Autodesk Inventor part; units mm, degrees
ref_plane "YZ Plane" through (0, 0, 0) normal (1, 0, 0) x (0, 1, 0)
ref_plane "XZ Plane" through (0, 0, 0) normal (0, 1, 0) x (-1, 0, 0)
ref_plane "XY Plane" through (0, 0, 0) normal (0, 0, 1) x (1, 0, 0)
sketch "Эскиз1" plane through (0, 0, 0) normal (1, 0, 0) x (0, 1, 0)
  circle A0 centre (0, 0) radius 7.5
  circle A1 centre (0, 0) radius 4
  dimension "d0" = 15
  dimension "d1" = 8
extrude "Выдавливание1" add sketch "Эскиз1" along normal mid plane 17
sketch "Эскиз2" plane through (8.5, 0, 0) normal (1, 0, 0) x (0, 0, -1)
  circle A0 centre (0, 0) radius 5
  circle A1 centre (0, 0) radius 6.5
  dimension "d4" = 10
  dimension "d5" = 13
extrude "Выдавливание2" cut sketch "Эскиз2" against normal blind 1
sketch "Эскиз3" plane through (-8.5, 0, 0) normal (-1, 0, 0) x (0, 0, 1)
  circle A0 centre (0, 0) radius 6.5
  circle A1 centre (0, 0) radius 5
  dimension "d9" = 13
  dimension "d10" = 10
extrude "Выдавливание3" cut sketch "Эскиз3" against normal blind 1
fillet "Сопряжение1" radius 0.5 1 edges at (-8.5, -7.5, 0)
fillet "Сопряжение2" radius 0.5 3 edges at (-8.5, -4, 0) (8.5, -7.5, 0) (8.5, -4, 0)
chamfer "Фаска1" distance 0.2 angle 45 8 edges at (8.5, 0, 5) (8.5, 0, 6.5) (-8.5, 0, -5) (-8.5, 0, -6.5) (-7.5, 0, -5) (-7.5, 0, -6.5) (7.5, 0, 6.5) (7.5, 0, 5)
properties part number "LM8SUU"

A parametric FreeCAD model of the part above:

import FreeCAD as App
import Part
import Sketcher
from FreeCAD import Vector


def edges_at(feature, points):
    """Names of the edges that pass closest to the given points."""
    edges = feature.Shape.Edges
    near = lambda p: min(range(len(edges)), key=lambda i: edges[i].distToShape(Part.Vertex(*p))[0])
    return sorted({f"Edge{near(p) + 1}" for p in points})

doc = App.newDocument("Part")
body = doc.addObject("PartDesign::Body", "Body")

sketch1 = body.newObject("Sketcher::SketchObject", "Sketch")
sketch1.AttachmentSupport = (doc.getObject("YZ_Plane"), [""])
sketch1.MapMode = "FlatFace"
sketch1.addGeometry([
    Part.Circle(Vector(0, 0, 0), Vector(0, 0, 1), 7.5),
    Part.Circle(Vector(0, 0, 0), Vector(0, 0, 1), 4),
], False)
sketch1.addConstraint([
    Sketcher.Constraint("Coincident", 0, 3, -1, 1),
    Sketcher.Constraint("Coincident", 1, 3, -1, 1),
    Sketcher.Constraint("Diameter", 0, 15.0),
    Sketcher.Constraint("Diameter", 1, 8.0),
])
pad1 = body.newObject("PartDesign::Pad", "Pad")
pad1.Profile = sketch1
pad1.Length = 17
pad1.Midplane = True

sketch2 = body.newObject("Sketcher::SketchObject", "Sketch001")
sketch2.AttachmentSupport = (doc.getObject("YZ_Plane"), [""])
sketch2.MapMode = "FlatFace"
sketch2.AttachmentOffset = App.Placement(Vector(0, 0, 8.5), App.Rotation())
sketch2.addGeometry([
    Part.Circle(Vector(0, 0, 0), Vector(0, 0, 1), 6),
    Part.Circle(Vector(0, 0, 0), Vector(0, 0, 1), 5),
], False)
sketch2.addConstraint([
    Sketcher.Constraint("Coincident", 0, 3, -1, 1),
    Sketcher.Constraint("Coincident", 1, 3, -1, 1),
    Sketcher.Constraint("Diameter", 0, 13.0),
    Sketcher.Constraint("Diameter", 1, 10.0),
])
pocket1 = body.newObject("PartDesign::Pocket", "Pocket")
pocket1.Profile = sketch2
pocket1.Length = 1

sketch3 = body.newObject("Sketcher::SketchObject", "Sketch002")
sketch3.AttachmentSupport = (doc.getObject("YZ_Plane"), [""])
sketch3.MapMode = "FlatFace"
sketch3.AttachmentOffset = App.Placement(Vector(0, 0, -8.5), App.Rotation())
sketch3.addGeometry([
    Part.Circle(Vector(0, 0, 0), Vector(0, 0, 1), 6),
    Part.Circle(Vector(0, 0, 0), Vector(0, 0, 1), 5),
], False)
sketch3.addConstraint([
    Sketcher.Constraint("Coincident", 0, 3, -1, 1),
    Sketcher.Constraint("Coincident", 1, 3, -1, 1),
    Sketcher.Constraint("Diameter", 0, 13.0),
    Sketcher.Constraint("Diameter", 1, 10.0),
])
pocket2 = body.newObject("PartDesign::Pocket", "Pocket001")
pocket2.Profile = sketch3
pocket2.Length = 1
pocket2.Reversed = True
doc.recompute()

fillet = body.newObject("PartDesign::Fillet", "Fillet")
fillet.Base = (pocket2, edges_at(pocket2, [(-8.5, -7.5, 0)]))
fillet.Radius = 0.5
doc.recompute()

fillet2 = body.newObject("PartDesign::Fillet", "Fillet001")
fillet2.Base = (fillet, edges_at(fillet, [(-8.5, -4, 0), (8.5, -7.5, 0), (8.5, -4, 0)]))
fillet2.Radius = 0.5
doc.recompute()

chamfer = body.newObject("PartDesign::Chamfer", "Chamfer")
chamfer.Base = (fillet2, edges_at(fillet2, [
    (8.5, 0, 5),
    (8.5, 0, 6.5),
    (-8.5, 0, -5),
    (-8.5, 0, -6.5),
    (-7.5, 0, -5),
    (-7.5, 0, -6.5),
    (7.5, 0, 6.5),
    (7.5, 0, 5),
]))
chamfer.Size = 0.2

doc.recompute()
